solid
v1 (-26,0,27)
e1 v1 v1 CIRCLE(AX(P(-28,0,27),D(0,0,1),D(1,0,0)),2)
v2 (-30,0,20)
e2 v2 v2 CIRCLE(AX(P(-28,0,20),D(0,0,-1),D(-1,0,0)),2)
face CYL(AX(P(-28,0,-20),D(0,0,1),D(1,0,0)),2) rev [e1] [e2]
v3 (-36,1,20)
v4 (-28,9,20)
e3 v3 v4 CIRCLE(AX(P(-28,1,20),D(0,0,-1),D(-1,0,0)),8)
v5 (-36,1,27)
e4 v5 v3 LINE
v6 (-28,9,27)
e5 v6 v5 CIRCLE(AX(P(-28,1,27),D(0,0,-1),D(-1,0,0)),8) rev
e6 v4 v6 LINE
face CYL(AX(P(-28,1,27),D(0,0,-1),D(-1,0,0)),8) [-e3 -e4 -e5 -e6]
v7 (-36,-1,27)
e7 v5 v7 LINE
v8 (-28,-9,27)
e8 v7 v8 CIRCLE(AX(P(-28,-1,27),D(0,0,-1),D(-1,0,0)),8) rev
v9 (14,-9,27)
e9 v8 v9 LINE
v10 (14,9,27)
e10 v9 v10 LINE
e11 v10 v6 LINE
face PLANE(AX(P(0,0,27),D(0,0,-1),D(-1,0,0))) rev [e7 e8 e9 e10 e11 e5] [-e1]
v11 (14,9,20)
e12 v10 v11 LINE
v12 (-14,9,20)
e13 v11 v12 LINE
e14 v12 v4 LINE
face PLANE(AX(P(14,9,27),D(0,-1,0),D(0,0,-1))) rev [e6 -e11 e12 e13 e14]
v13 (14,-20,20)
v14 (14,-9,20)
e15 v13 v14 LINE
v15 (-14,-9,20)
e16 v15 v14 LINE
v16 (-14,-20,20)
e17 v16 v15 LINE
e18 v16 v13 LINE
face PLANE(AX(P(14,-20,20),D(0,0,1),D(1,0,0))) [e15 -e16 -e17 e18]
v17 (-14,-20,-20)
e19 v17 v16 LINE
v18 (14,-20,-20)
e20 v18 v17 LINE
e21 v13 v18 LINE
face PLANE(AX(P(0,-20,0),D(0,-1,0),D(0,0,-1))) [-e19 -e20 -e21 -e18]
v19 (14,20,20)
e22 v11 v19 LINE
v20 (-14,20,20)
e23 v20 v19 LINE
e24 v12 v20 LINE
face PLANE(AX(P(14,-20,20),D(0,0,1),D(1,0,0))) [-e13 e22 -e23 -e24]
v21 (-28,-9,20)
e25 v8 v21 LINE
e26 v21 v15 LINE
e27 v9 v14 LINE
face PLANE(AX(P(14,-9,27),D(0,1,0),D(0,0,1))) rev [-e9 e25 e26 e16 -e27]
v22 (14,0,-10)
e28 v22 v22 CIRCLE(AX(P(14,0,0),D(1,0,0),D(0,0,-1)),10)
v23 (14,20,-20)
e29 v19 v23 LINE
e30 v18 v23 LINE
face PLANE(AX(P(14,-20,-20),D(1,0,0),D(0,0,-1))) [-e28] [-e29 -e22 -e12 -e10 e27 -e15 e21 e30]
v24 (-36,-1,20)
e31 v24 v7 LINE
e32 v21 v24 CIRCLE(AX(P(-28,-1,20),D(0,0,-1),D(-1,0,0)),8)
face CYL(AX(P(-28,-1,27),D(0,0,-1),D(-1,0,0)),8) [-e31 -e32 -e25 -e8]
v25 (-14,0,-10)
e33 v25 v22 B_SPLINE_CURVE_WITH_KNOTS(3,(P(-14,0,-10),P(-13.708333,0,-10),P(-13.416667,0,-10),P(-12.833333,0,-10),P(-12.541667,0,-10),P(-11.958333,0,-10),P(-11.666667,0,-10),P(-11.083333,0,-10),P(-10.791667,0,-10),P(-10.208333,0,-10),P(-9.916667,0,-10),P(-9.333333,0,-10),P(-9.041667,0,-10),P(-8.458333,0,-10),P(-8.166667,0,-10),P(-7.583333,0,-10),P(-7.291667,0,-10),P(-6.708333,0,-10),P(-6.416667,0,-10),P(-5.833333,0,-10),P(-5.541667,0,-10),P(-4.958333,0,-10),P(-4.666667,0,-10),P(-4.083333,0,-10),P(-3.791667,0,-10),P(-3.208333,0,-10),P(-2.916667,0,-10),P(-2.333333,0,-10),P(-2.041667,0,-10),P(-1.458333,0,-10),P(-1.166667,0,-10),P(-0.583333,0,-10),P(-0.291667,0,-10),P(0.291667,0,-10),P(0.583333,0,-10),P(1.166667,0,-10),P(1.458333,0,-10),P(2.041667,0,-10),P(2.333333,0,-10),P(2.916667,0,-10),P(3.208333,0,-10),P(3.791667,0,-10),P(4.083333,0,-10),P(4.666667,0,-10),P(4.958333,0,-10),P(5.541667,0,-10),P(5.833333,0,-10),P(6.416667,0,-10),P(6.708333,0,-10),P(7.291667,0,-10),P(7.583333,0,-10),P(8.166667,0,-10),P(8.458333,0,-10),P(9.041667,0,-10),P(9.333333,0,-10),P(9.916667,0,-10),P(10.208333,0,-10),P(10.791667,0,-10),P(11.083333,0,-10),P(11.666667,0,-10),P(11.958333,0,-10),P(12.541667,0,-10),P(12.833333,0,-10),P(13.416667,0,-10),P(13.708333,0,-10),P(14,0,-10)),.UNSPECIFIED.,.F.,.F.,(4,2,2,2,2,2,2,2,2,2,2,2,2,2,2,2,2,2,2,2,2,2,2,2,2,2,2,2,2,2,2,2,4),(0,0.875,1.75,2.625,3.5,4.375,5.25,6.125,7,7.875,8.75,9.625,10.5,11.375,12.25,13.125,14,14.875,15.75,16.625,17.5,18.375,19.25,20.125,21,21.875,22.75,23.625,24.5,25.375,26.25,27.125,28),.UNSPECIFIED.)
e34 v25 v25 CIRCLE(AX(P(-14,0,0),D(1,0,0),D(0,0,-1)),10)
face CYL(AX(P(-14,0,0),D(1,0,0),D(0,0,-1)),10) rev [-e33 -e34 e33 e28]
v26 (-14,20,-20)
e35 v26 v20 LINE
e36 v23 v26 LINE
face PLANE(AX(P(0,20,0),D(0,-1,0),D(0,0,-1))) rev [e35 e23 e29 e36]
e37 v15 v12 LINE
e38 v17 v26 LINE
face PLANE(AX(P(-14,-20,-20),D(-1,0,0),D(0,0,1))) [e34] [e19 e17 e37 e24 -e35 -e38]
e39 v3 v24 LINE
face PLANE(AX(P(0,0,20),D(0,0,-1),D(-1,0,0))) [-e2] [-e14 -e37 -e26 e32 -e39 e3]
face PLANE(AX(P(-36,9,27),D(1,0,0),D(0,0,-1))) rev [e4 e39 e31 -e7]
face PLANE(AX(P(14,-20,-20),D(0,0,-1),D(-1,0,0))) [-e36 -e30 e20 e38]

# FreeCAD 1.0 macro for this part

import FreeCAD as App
import Part
import Sketcher


def edges_at(feature, points):
    """Names of the edges that pass closest to the given points."""
    edges = feature.Shape.Edges
    near = lambda p: min(range(len(edges)), key=lambda i: edges[i].distToShape(Part.Vertex(*p))[0])
    return sorted({f"Edge{near(p) + 1}" for p in points})

doc = App.newDocument("Part")
body = doc.addObject("PartDesign::Body", "Body")

# Sketch on XZ plane
sketch1 = body.newObject("Sketcher::SketchObject", "Sketch")
sketch1.AttachmentSupport = (doc.getObject("XZ_Plane"), [""])
sketch1.MapMode = "FlatFace"
sketch1.addGeometry([
    Part.LineSegment(App.Vector(-14, -20, 0), App.Vector(-14, 20, 0)),
    Part.LineSegment(App.Vector(-14, 20, 0), App.Vector(14, 20, 0)),
    Part.LineSegment(App.Vector(14, 20, 0), App.Vector(14, -20, 0)),
    Part.LineSegment(App.Vector(14, -20, 0), App.Vector(-14, -20, 0)),
], False)
sketch1.addConstraint([
    Sketcher.Constraint("Coincident", 0, 2, 1, 1),
    Sketcher.Constraint("Coincident", 1, 2, 2, 1),
    Sketcher.Constraint("Coincident", 2, 2, 3, 1),
    Sketcher.Constraint("Coincident", 3, 2, 0, 1),
    Sketcher.Constraint("Vertical", 0),
    Sketcher.Constraint("Horizontal", 1),
    Sketcher.Constraint("Vertical", 2),
    Sketcher.Constraint("Horizontal", 3),
    Sketcher.Constraint("Symmetric", 0, 2, 2, 2, -1, 1),
    Sketcher.Constraint("DistanceX", 1, 1, 1, 2, 28.0),
    Sketcher.Constraint("DistanceY", 0, 1, 0, 2, 40.0),
])
pad1 = body.newObject("PartDesign::Pad", "Pad")
pad1.Profile = sketch1
pad1.Type = "TwoLengths"
pad1.Length = 20
pad1.Length2 = 20
pad1.Reversed = True

# Sketch on YZ plane
sketch2 = body.newObject("Sketcher::SketchObject", "Sketch001")
sketch2.AttachmentSupport = (doc.getObject("YZ_Plane"), [""])
sketch2.MapMode = "FlatFace"
sketch2.AttachmentOffset = App.Placement(App.Vector(0, 0, 14), App.Rotation())
sketch2.addGeometry(Part.Circle(App.Vector(0, 0, 0), App.Vector(0, 0, 1), 10), False)
sketch2.addConstraint([
    Sketcher.Constraint("Coincident", 0, 3, -1, 1),
    Sketcher.Constraint("Diameter", 0, 20.0),
])
pocket1 = body.newObject("PartDesign::Pocket", "Pocket")
pocket1.Profile = sketch2
pocket1.Type = "ThroughAll"

# Sketch on XY plane
sketch3 = body.newObject("Sketcher::SketchObject", "Sketch002")
sketch3.AttachmentSupport = (doc.getObject("XY_Plane"), [""])
sketch3.MapMode = "FlatFace"
sketch3.AttachmentOffset = App.Placement(App.Vector(0, 0, 20), App.Rotation())
sketch3.addGeometry([
    Part.LineSegment(App.Vector(-36, 9, 0), App.Vector(-36, -9, 0)),
    Part.LineSegment(App.Vector(-36, -9, 0), App.Vector(14, -9, 0)),
    Part.LineSegment(App.Vector(14, -9, 0), App.Vector(14, 9, 0)),
    Part.LineSegment(App.Vector(14, 9, 0), App.Vector(-36, 9, 0)),
], False)
sketch3.addConstraint([
    Sketcher.Constraint("Coincident", 0, 2, 1, 1),
    Sketcher.Constraint("Coincident", 1, 2, 2, 1),
    Sketcher.Constraint("Coincident", 2, 2, 3, 1),
    Sketcher.Constraint("Coincident", 3, 2, 0, 1),
    Sketcher.Constraint("Vertical", 0),
    Sketcher.Constraint("Horizontal", 1),
    Sketcher.Constraint("Vertical", 2),
    Sketcher.Constraint("Horizontal", 3),
    Sketcher.Constraint("DistanceX", 1, 1, 1, 2, 50.0),
    Sketcher.Constraint("DistanceY", 0, 2, 0, 1, 18.0),
    Sketcher.Constraint("DistanceX", 0, 2, -1, 1, 36.0),
    Sketcher.Constraint("DistanceY", 0, 2, -1, 1, 9.0),
])
pad2 = body.newObject("PartDesign::Pad", "Pad001")
pad2.Profile = sketch3
pad2.Length = 7

# Sketch on XY plane
sketch4 = body.newObject("Sketcher::SketchObject", "Sketch003")
sketch4.AttachmentSupport = (doc.getObject("XY_Plane"), [""])
sketch4.MapMode = "FlatFace"
sketch4.AttachmentOffset = App.Placement(App.Vector(0, 0, 27), App.Rotation())
sketch4.addGeometry(Part.Circle(App.Vector(-28, 0, 0), App.Vector(0, 0, 1), 2), False)
sketch4.addConstraint([
    Sketcher.Constraint("PointOnObject", 0, 3, -1),
    Sketcher.Constraint("Diameter", 0, 4.0),
    Sketcher.Constraint("DistanceX", 0, 3, -1, 1, 28.0),
])
pocket2 = body.newObject("PartDesign::Pocket", "Pocket001")
pocket2.Profile = sketch4
pocket2.Type = "ThroughAll"
doc.recompute()

fillet = body.newObject("PartDesign::Fillet", "Fillet")
fillet.Base = (pocket2, edges_at(pocket2, [(-36, 9, 23.5), (-36, -9, 23.5)]))
fillet.Radius = 8

doc.recompute()
